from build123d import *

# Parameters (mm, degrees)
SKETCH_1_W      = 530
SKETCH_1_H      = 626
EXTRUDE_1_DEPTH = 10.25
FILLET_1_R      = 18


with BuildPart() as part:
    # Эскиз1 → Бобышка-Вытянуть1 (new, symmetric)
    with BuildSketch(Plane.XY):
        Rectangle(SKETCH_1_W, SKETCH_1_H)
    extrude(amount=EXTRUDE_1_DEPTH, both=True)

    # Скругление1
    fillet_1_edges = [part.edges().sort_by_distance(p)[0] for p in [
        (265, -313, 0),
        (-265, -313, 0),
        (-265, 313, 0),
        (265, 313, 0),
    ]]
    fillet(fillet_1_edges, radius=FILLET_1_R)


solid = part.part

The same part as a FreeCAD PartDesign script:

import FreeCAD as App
import Part
import Sketcher

V = App.Vector
Q = App.Units.Quantity


def edges_at(feature, points):
    """Names of the edges that pass closest to the given points."""
    edges = feature.Shape.Edges
    near = lambda p: min(range(len(edges)), key=lambda i: edges[i].distToShape(Part.Vertex(*p))[0])
    return sorted({f"Edge{near(p) + 1}" for p in points})

doc = App.newDocument("Part")
body = doc.addObject("PartDesign::Body", "Body")

# Sketch on XY plane
sketch1 = body.newObject("Sketcher::SketchObject", "Sketch")
sketch1.AttachmentSupport = (doc.getObject("XY_Plane"), [""])
sketch1.MapMode = "FlatFace"
sketch1.addGeometry([
    Part.LineSegment(V(-265, 313, 0), V(-265, -313, 0)),
    Part.LineSegment(V(-265, -313, 0), V(265, -313, 0)),
    Part.LineSegment(V(265, -313, 0), V(265, 313, 0)),
    Part.LineSegment(V(265, 313, 0), V(-265, 313, 0)),
], False)
sketch1.addConstraint([
    Sketcher.Constraint("Coincident", 0, 2, 1, 1),
    Sketcher.Constraint("Coincident", 1, 2, 2, 1),
    Sketcher.Constraint("Coincident", 2, 2, 3, 1),
    Sketcher.Constraint("Coincident", 3, 2, 0, 1),
    Sketcher.Constraint("Vertical", 0),
    Sketcher.Constraint("Horizontal", 1),
    Sketcher.Constraint("Vertical", 2),
    Sketcher.Constraint("Horizontal", 3),
    Sketcher.Constraint("Symmetric", 0, 2, 2, 2, -1, 1),
    Sketcher.Constraint("DistanceX", 1, 1, 1, 2, Q("530 mm")),
    Sketcher.Constraint("DistanceY", 0, 2, 0, 1, Q("626 mm")),
])
pad1 = body.newObject("PartDesign::Pad", "Pad")
pad1.Profile = sketch1
pad1.Length = 20.5
pad1.Midplane = True
doc.recompute()

fillet = body.newObject("PartDesign::Fillet", "Fillet")
fillet.Base = (pad1, edges_at(pad1, [
    (265, -313, 0),
    (-265, -313, 0),
    (-265, 313, 0),
    (265, 313, 0),
]))
fillet.Radius = 18

doc.recompute()
